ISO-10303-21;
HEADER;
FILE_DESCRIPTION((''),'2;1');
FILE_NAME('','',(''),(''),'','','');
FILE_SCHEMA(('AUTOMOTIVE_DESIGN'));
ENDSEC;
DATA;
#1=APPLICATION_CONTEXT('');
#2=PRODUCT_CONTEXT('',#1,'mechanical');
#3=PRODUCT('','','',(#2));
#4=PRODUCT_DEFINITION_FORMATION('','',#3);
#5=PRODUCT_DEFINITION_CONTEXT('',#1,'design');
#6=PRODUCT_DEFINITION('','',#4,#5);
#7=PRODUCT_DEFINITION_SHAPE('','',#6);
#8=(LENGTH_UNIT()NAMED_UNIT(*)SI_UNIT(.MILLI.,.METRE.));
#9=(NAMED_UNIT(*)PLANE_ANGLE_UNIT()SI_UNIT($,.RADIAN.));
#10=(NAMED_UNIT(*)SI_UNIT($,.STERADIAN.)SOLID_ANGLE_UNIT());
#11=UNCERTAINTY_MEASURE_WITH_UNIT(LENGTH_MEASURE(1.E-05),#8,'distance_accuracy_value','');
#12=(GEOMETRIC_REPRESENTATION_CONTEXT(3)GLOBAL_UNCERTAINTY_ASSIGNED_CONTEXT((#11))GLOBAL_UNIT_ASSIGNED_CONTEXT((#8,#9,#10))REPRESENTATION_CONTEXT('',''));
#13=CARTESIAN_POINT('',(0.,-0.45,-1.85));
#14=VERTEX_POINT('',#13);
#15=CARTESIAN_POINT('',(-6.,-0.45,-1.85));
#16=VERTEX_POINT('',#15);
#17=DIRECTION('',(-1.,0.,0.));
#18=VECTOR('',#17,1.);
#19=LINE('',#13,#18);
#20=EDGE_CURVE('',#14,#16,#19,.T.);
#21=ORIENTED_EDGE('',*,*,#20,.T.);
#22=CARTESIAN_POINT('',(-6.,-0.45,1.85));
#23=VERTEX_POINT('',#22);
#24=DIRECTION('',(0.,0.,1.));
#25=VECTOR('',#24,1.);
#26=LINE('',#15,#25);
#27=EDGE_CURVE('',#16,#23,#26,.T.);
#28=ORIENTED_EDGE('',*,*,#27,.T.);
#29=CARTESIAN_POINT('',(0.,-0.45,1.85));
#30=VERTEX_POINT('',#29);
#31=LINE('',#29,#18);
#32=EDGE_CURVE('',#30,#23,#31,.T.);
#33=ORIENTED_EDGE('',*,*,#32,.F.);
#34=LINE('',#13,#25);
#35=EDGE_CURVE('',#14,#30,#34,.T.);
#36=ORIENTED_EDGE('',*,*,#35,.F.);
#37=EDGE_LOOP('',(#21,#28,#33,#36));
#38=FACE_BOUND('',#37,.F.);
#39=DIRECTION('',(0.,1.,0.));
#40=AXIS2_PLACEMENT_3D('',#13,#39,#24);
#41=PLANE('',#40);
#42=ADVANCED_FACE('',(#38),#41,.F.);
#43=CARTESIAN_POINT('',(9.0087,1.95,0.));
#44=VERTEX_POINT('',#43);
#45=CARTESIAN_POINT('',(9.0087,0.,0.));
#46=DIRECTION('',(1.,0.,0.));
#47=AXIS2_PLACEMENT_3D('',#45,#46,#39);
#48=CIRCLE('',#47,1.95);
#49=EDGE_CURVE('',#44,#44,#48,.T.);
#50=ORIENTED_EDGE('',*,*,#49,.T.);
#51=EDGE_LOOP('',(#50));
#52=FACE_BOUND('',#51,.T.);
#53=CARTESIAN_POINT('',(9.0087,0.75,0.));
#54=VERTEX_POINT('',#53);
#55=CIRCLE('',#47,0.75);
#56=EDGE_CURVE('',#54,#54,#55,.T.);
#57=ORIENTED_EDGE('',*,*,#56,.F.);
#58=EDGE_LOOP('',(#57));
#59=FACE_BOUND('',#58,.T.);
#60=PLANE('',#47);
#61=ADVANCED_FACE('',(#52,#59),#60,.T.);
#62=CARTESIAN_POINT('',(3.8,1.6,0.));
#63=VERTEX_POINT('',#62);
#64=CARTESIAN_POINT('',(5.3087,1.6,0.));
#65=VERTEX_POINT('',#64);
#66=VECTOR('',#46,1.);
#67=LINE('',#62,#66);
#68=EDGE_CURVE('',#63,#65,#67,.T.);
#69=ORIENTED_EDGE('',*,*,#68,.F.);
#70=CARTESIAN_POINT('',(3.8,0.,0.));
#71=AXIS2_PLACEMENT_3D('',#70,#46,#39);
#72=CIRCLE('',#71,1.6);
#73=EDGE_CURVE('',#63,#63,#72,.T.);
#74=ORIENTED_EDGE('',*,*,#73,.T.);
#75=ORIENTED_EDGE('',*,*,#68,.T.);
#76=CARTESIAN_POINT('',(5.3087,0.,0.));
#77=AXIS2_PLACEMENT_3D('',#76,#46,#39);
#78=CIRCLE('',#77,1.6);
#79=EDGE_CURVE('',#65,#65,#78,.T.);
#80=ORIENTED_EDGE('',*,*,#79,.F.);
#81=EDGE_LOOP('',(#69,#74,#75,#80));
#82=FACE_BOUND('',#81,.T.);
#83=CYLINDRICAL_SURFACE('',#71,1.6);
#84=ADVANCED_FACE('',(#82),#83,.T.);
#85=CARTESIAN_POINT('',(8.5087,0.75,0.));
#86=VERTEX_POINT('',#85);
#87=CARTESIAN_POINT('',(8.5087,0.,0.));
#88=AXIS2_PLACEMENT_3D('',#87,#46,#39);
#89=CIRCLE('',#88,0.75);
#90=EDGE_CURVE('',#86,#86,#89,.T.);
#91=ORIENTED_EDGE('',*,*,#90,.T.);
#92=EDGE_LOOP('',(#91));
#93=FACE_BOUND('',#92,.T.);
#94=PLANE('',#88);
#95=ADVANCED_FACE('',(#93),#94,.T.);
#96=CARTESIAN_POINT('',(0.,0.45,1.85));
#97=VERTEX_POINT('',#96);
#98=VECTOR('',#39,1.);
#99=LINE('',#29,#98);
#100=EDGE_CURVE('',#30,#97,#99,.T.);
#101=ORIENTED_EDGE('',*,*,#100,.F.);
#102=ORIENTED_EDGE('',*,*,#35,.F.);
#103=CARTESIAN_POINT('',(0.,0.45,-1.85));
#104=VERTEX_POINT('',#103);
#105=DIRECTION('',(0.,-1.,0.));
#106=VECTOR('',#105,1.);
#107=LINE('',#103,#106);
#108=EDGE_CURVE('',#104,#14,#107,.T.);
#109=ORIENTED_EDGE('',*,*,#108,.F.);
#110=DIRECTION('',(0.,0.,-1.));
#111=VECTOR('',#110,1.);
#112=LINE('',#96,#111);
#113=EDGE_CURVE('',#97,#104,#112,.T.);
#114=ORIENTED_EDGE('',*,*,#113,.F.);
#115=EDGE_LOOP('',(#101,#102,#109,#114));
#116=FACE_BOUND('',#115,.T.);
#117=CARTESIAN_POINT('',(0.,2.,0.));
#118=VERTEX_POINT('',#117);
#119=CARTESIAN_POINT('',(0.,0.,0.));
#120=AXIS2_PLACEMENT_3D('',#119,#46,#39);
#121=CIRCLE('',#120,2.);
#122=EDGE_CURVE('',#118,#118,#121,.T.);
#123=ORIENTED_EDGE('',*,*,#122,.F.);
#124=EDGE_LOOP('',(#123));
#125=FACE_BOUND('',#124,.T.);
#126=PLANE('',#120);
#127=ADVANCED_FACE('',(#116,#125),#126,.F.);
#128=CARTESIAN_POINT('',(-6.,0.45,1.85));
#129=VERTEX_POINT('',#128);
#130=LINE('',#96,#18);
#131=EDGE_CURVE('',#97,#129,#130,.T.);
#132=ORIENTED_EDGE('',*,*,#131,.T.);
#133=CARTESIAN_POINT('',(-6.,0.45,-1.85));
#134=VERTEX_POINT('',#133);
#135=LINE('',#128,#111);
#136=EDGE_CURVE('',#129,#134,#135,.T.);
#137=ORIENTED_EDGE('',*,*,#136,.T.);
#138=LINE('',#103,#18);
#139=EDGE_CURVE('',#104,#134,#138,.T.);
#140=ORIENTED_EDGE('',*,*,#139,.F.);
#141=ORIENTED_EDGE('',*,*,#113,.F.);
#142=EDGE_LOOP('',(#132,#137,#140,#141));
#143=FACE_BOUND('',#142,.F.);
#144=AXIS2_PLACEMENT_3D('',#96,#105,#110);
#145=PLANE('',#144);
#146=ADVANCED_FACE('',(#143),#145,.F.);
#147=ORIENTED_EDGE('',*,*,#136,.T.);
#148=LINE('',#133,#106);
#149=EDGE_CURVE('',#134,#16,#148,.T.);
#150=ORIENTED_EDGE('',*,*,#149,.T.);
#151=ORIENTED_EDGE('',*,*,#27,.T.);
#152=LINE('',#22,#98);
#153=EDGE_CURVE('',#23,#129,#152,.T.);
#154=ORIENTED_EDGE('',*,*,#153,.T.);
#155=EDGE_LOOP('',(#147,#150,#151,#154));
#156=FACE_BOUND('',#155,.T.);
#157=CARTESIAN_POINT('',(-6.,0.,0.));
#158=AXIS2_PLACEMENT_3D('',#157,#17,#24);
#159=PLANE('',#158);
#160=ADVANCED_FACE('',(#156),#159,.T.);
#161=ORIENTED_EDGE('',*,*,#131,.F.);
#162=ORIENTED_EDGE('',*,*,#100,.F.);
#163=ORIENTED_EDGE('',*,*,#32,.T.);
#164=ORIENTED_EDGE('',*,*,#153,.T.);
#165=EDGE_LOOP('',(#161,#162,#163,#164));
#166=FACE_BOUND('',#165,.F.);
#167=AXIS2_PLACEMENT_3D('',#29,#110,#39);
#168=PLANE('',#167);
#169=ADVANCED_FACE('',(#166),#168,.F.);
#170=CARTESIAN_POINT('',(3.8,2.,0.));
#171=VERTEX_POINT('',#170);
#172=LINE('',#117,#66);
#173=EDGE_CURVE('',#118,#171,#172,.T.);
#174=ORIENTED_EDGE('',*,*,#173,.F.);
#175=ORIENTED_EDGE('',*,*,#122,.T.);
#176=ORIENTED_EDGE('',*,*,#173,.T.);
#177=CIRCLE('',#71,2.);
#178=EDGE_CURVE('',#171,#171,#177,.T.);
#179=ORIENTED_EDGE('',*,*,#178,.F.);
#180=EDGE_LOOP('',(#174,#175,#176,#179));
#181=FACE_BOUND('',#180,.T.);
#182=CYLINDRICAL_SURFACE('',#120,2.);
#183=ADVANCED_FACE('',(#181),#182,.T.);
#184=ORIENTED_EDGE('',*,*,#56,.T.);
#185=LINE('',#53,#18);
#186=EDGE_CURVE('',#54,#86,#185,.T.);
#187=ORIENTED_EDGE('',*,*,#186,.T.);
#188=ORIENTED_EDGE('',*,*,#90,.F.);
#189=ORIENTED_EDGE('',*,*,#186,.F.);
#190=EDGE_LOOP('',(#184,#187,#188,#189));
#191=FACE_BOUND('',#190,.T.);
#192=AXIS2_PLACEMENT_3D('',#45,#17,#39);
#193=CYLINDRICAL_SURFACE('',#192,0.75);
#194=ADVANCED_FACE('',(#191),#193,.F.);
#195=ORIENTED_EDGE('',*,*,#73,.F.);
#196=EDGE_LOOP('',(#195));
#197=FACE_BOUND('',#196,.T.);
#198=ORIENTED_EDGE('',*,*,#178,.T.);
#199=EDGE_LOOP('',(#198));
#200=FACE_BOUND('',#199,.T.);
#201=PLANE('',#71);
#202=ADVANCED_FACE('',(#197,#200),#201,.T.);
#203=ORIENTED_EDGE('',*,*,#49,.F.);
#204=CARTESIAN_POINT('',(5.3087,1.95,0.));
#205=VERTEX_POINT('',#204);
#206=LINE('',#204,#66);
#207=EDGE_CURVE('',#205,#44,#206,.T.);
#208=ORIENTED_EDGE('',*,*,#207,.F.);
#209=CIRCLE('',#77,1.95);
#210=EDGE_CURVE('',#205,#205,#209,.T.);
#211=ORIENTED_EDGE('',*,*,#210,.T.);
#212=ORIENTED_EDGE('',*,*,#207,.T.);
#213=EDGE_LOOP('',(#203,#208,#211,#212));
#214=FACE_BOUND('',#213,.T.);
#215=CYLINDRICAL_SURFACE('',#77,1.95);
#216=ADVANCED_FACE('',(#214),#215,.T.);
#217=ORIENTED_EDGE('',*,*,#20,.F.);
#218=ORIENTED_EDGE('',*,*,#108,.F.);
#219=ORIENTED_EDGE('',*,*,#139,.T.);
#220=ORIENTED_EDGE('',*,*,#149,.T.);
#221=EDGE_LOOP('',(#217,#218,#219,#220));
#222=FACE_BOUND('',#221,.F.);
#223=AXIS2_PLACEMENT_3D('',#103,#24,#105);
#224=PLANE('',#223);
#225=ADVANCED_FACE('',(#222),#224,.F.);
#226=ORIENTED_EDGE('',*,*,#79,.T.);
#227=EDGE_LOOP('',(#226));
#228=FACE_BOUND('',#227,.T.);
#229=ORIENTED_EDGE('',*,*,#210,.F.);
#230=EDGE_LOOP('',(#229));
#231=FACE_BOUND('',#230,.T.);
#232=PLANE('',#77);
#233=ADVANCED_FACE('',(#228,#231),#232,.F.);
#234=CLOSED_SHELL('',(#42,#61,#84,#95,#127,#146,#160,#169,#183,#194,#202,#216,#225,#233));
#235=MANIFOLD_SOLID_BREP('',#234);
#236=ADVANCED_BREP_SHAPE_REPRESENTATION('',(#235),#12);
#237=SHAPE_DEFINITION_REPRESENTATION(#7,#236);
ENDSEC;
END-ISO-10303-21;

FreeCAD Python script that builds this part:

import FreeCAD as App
import Part
import Sketcher


def add_polygon(sketch, points):
    """Adds a closed chain of lines whose ends are joined by coincident constraints."""
    first, n = sketch.GeometryCount, len(points)
    for a, b in zip(points, points[1:] + points[:1]):
        sketch.addGeometry(Part.LineSegment(App.Vector(*a, 0), App.Vector(*b, 0)), False)
    for i in range(n):
        sketch.addConstraint(Sketcher.Constraint("Coincident", first + i, 2, first + (i + 1) % n, 1))

doc = App.newDocument("Part")
body = doc.addObject("PartDesign::Body", "Body")

# Sketch on XY plane
sketch1 = body.newObject("Sketcher::SketchObject", "Sketch")
sketch1.AttachmentSupport = (doc.getObject("XY_Plane"), [""])
sketch1.MapMode = "FlatFace"
add_polygon(sketch1, [(0, 2), (0, 0), (8.51, 0), (8.51, 0.75), (9.01, 0.75), (9.01, 1.95), (5.31, 1.95), (5.31, 1.6), (3.8, 1.6), (3.8, 2)])  # lines 0-9
sketch1.addConstraint([
    Sketcher.Constraint("Vertical", 0),
    Sketcher.Constraint("Horizontal", 1),
    Sketcher.Constraint("Vertical", 2),
    Sketcher.Constraint("Horizontal", 3),
    Sketcher.Constraint("Vertical", 4),
    Sketcher.Constraint("Horizontal", 5),
    Sketcher.Constraint("Vertical", 6),
    Sketcher.Constraint("Horizontal", 7),
    Sketcher.Constraint("Vertical", 8),
    Sketcher.Constraint("Horizontal", 9),
    Sketcher.Constraint("Coincident", 0, 2, -1, 1),
    Sketcher.Constraint("DistanceX", 3, 1, 3, 2, 0.5),
    Sketcher.Constraint("DistanceX", 5, 2, 5, 1, 3.7),
    Sketcher.Constraint("DistanceX", 9, 2, 9, 1, 3.8),
    Sketcher.Constraint("DistanceY", 0, 2, 0, 1, 2.0),
    Sketcher.Constraint("DistanceY", 4, 1, 4, 2, 1.2),
    Sketcher.Constraint("DistanceY", 8, 1, 8, 2, 0.4),
    Sketcher.Constraint("DistanceY", 2, 1, 2, 2, 0.75),
    Sketcher.Constraint("DistanceX", 1, 1, 1, 2, 8.5087),
])
revolution = body.newObject("PartDesign::Revolution", "Revolution")
revolution.Profile = sketch1
revolution.ReferenceAxis = (sketch1, ["H_Axis"])
revolution.Angle = 360

# Sketch on YZ plane
sketch2 = body.newObject("Sketcher::SketchObject", "Sketch001")
sketch2.AttachmentSupport = (doc.getObject("YZ_Plane"), [""])
sketch2.MapMode = "FlatFace"
add_polygon(sketch2, [(0.5, -1.9), (-0.5, -1.9), (-0.5, 1.9), (0.5, 1.9)])  # lines 0-3
sketch2.addConstraint([
    Sketcher.Constraint("Horizontal", 0),
    Sketcher.Constraint("Vertical", 1),
    Sketcher.Constraint("Horizontal", 2),
    Sketcher.Constraint("Vertical", 3),
    Sketcher.Constraint("Symmetric", 0, 2, 2, 2, -1, 1),
    Sketcher.Constraint("DistanceX", 0, 2, 0, 1, 0.9),
    Sketcher.Constraint("DistanceY", 1, 1, 1, 2, 3.7),
])
pad1 = body.newObject("PartDesign::Pad", "Pad")
pad1.Profile = sketch2
pad1.Length = 6
pad1.Reversed = True

doc.recompute()
